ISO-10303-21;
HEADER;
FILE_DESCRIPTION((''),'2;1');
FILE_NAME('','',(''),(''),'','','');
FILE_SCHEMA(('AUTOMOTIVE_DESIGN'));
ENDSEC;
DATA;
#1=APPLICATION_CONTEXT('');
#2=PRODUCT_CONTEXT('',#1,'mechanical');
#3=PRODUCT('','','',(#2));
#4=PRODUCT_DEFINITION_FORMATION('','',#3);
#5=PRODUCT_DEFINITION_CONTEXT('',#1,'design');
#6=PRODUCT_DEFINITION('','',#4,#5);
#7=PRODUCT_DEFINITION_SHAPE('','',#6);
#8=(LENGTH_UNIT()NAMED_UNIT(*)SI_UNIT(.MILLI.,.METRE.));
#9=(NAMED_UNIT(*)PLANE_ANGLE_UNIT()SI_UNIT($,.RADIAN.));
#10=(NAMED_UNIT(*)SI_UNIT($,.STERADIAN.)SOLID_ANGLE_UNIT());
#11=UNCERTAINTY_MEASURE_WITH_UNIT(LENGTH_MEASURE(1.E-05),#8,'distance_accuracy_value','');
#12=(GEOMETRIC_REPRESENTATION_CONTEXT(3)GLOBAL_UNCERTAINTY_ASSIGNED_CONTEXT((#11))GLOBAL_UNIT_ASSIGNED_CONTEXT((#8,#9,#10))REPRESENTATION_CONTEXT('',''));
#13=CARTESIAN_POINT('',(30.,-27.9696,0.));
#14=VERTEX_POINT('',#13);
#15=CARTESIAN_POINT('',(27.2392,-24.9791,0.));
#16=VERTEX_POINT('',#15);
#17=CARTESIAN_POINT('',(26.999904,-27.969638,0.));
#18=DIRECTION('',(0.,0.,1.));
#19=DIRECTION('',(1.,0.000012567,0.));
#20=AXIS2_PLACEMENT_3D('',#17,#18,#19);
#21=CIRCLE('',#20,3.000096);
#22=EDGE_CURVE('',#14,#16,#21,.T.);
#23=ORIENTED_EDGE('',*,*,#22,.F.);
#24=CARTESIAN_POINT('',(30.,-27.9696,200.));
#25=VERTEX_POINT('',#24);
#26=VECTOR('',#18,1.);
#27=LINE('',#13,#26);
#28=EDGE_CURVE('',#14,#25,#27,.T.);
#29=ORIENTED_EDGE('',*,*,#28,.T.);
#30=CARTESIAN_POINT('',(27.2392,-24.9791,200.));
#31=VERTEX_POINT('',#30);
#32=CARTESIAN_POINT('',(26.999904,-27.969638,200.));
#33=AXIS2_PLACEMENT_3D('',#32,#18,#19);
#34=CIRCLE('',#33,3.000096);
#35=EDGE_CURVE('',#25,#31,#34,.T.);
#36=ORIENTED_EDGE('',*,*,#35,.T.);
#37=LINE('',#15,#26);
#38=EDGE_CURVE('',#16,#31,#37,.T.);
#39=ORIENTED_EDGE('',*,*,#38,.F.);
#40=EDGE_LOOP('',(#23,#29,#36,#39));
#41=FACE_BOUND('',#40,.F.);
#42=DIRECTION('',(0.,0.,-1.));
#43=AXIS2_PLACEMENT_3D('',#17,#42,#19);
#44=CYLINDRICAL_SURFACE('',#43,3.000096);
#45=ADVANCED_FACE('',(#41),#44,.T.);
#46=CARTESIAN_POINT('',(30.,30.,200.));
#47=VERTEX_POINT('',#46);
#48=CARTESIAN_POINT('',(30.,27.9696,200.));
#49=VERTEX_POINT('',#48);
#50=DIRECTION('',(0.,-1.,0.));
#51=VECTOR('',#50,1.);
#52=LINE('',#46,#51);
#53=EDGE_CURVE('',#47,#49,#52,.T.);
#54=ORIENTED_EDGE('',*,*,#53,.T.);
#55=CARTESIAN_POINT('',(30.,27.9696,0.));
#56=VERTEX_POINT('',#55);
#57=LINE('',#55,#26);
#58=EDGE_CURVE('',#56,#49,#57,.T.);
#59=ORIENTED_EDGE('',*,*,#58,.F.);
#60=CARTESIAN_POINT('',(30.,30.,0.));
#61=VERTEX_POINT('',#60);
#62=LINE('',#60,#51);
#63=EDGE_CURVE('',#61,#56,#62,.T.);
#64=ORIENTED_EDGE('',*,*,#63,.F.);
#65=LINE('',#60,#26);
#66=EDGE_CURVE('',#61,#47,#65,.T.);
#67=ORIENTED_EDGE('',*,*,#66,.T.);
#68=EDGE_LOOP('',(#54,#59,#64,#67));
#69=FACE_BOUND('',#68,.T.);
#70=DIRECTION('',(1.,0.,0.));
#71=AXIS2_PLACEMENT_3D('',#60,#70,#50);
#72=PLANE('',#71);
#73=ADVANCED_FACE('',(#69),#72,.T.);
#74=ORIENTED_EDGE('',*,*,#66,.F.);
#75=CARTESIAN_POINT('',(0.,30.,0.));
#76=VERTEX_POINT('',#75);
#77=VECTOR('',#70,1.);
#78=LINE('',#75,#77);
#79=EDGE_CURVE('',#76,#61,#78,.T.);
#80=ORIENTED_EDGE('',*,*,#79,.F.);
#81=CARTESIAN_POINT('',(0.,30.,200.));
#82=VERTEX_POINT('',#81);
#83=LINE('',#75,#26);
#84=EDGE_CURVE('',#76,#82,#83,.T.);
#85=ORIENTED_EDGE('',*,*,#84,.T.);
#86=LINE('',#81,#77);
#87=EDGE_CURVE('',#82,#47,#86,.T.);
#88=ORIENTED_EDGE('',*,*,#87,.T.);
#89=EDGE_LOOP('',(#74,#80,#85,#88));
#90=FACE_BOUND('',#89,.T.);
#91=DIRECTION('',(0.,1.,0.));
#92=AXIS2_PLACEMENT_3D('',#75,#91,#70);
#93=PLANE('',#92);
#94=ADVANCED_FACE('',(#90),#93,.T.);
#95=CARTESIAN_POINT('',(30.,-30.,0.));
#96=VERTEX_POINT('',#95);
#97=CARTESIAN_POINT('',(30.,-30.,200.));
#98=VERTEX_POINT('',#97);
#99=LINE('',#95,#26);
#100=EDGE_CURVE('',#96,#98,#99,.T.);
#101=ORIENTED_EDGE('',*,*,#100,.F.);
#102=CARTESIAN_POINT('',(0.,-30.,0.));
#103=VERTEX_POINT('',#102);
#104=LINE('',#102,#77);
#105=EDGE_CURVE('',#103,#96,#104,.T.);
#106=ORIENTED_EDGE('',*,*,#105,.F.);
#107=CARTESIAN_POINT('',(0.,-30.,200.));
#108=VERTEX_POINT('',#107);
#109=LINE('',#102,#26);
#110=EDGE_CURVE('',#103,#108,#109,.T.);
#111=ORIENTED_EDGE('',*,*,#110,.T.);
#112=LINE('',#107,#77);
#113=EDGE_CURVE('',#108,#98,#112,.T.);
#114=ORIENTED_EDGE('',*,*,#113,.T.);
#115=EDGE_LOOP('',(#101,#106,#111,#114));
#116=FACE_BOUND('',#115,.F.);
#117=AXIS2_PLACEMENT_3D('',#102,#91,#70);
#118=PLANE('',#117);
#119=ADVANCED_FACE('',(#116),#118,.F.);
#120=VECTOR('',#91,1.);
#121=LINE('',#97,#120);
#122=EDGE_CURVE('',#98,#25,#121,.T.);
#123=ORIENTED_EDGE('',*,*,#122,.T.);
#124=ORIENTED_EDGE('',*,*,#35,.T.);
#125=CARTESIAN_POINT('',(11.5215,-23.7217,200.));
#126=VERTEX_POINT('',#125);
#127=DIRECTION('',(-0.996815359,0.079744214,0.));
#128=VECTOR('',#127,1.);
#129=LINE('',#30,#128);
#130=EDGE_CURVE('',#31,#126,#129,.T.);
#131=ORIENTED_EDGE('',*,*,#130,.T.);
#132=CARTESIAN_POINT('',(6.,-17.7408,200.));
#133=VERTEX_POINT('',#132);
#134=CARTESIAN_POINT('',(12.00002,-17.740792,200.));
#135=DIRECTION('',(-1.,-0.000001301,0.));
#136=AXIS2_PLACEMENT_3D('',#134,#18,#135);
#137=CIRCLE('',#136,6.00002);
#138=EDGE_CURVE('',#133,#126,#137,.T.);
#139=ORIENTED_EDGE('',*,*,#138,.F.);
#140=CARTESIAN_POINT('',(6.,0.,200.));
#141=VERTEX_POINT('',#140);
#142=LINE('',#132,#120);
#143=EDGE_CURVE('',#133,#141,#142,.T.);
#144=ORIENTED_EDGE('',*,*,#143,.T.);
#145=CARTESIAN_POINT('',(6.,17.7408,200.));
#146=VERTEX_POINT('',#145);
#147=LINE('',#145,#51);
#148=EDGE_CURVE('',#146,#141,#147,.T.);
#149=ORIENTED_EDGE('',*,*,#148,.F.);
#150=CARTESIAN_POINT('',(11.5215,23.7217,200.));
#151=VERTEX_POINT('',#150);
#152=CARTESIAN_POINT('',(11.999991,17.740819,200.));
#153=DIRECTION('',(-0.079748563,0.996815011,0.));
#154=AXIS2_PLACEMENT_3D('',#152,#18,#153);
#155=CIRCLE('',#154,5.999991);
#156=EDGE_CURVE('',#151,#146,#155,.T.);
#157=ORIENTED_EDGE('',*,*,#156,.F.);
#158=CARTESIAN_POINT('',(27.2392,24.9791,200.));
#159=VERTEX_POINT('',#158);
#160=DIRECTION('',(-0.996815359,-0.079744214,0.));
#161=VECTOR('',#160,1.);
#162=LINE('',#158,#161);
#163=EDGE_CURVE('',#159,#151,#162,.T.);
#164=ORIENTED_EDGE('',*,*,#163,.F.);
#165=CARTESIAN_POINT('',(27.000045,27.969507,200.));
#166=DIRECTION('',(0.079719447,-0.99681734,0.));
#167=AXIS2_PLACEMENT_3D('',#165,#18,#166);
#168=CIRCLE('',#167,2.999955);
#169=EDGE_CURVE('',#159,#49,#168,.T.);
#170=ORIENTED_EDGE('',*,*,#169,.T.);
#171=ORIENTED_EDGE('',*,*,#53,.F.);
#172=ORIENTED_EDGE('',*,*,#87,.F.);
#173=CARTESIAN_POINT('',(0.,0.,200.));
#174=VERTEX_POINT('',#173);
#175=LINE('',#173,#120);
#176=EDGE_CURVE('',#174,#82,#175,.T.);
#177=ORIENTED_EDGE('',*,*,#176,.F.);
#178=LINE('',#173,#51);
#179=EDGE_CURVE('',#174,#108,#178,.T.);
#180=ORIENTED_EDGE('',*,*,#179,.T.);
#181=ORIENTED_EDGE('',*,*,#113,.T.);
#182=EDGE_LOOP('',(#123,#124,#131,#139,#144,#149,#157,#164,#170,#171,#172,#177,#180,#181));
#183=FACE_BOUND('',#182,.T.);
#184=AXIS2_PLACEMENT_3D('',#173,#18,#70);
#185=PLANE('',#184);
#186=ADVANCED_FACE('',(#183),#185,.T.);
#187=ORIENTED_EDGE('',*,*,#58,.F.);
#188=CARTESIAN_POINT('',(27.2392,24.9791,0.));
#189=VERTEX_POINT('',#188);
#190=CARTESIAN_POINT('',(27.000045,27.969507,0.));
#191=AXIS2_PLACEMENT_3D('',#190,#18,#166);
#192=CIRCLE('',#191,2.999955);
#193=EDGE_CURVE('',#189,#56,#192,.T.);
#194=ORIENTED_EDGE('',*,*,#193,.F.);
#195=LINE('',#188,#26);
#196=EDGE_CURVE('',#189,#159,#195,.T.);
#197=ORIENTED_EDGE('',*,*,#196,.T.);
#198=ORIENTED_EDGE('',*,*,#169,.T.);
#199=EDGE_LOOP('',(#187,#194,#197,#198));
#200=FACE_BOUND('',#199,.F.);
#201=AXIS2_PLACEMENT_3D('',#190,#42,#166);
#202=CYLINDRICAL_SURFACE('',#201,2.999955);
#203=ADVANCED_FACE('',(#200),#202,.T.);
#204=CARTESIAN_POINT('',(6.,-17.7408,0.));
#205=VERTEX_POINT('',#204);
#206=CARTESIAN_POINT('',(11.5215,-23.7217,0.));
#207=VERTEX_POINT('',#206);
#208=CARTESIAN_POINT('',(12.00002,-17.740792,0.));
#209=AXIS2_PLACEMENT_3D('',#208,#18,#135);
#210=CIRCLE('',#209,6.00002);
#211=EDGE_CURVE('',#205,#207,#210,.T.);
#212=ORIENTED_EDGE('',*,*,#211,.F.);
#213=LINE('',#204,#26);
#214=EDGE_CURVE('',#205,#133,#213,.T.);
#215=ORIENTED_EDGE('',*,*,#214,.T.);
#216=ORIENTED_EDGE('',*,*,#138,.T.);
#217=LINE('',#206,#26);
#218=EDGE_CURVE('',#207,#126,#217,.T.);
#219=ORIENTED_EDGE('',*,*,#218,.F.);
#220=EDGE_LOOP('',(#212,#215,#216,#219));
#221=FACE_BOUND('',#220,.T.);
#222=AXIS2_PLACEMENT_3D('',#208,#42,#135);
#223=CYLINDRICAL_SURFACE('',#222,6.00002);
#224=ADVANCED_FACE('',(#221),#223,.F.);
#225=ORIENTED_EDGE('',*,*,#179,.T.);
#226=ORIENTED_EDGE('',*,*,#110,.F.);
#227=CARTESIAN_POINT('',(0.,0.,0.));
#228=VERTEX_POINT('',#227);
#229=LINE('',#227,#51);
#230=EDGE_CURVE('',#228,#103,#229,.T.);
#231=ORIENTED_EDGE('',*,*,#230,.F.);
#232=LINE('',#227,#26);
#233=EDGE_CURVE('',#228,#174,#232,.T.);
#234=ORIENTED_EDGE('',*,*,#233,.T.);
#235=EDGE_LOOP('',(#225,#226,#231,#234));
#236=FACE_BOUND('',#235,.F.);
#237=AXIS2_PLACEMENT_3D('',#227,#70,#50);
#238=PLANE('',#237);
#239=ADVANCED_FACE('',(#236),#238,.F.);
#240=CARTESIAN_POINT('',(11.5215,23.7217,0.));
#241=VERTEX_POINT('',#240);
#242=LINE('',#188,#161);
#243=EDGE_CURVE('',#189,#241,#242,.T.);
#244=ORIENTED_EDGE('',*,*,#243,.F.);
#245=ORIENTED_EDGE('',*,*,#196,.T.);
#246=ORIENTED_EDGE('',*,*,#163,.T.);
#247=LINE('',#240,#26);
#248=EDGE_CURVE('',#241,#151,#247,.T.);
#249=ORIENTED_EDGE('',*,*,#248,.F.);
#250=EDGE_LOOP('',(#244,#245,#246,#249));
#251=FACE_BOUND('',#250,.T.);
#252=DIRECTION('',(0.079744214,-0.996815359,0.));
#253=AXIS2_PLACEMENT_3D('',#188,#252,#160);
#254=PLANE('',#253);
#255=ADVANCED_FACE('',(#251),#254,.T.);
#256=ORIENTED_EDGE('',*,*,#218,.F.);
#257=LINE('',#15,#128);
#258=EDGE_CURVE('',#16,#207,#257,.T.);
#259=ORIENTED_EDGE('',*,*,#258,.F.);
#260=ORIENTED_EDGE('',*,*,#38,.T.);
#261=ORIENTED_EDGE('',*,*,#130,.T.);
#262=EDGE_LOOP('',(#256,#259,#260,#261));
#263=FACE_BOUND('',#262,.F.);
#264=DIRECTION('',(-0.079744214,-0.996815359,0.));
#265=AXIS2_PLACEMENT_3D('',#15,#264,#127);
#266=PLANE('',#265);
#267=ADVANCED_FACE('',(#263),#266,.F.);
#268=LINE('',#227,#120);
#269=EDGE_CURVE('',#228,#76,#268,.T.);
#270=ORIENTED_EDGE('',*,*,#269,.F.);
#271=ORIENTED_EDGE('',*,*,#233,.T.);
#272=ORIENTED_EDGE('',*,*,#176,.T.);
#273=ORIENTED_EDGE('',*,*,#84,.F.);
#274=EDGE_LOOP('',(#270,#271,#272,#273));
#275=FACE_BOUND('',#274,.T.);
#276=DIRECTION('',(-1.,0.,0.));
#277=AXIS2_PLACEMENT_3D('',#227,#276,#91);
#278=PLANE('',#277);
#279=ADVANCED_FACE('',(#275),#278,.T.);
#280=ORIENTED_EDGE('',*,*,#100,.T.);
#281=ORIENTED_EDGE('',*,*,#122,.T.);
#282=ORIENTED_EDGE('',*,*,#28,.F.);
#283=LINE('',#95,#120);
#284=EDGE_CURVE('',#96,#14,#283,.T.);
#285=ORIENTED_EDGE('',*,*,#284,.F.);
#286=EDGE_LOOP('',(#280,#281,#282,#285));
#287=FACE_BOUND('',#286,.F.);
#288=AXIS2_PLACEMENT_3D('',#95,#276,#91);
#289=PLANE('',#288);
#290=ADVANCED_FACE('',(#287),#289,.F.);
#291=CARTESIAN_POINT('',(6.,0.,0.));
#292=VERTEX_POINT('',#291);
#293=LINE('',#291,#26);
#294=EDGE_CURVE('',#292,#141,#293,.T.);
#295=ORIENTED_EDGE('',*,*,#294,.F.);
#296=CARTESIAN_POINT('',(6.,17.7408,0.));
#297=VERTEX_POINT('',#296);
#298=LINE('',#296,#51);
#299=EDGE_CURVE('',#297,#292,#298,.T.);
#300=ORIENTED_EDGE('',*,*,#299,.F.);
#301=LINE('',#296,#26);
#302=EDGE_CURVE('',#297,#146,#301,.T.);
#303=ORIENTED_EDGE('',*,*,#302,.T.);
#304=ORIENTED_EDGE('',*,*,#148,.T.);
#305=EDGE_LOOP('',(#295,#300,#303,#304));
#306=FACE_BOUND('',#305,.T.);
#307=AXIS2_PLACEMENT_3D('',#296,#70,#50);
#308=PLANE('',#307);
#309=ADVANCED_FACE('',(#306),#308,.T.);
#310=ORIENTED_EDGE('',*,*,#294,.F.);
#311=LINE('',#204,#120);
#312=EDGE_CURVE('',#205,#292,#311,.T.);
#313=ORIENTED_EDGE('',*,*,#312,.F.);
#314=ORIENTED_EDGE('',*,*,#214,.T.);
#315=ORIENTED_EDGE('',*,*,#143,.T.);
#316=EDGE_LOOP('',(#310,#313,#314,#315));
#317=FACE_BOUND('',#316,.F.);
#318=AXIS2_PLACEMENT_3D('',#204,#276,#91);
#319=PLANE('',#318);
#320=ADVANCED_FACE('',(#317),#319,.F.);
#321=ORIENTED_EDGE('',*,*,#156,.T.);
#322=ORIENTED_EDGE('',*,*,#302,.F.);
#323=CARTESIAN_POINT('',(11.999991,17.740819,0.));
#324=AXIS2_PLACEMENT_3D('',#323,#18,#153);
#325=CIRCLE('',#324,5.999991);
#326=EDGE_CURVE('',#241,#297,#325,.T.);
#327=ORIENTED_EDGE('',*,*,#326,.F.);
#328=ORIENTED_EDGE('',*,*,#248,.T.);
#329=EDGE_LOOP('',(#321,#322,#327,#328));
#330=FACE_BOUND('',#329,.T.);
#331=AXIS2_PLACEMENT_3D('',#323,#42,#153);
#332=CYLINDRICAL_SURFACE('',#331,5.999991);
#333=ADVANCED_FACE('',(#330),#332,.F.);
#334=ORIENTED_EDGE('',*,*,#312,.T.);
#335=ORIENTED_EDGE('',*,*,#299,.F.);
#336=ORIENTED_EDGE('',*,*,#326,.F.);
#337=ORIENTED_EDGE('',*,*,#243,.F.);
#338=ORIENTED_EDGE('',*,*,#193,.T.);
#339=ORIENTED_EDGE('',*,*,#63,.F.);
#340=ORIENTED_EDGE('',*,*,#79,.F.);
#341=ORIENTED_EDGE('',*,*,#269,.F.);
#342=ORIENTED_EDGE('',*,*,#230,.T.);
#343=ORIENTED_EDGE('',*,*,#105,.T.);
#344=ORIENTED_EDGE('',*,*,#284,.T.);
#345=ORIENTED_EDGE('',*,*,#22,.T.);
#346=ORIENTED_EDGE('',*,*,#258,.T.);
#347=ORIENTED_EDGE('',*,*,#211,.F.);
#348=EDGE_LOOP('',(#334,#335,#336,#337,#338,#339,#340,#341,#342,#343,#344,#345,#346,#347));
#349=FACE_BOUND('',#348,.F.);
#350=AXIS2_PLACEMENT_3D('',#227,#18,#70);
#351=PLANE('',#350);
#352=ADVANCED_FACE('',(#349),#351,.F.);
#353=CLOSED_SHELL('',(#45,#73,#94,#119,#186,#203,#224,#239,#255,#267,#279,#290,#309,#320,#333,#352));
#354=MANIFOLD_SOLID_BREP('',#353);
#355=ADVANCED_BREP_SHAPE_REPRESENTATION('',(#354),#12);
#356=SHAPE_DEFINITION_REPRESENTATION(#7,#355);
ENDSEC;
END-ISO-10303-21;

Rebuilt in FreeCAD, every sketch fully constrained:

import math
import FreeCAD as App
import Part
import Sketcher
Q = App.Units.Quantity

doc = App.newDocument("Part")
params = doc.addObject("Spreadsheet::Sheet", "Params")
for row, (alias, value) in enumerate([
    ("sketch1_radius", "3 mm"),
    ("sketch1_radius2", "6 mm"),
    ("sketch1_width", "30 mm"),
    ("pad1_length", "200 mm"),
], start=1):
    params.set(f"A{row}", alias)
    params.set(f"B{row}", "=" + value)
    params.setAlias(f"B{row}", alias)

body = doc.addObject("PartDesign::Body", "Body")

# Sketch on XY plane
sketch1 = body.newObject("Sketcher::SketchObject", "Sketch")
sketch1.AttachmentSupport = (doc.getObject("XY_Plane"), [""])
sketch1.MapMode = "FlatFace"
sketch1.addGeometry([
    Part.LineSegment(App.Vector(0, 30, 0), App.Vector(0, -30, 0)),  # 0
    Part.LineSegment(App.Vector(0, -30, 0), App.Vector(30, -30, 0)),  # 1
    Part.LineSegment(App.Vector(30, -30, 0), App.Vector(30, -28, 0)),  # 2
    Part.ArcOfCircle(Part.Circle(App.Vector(27, -28, 0), App.Vector(0, 0, 1), 3), math.radians(0), math.radians(85)),  # 3
    Part.LineSegment(App.Vector(27.2, -25, 0), App.Vector(11.5, -23.7, 0)),  # 4
    Part.ArcOfCircle(Part.Circle(App.Vector(12, -17.7, 0), App.Vector(0, 0, 1), 6), math.radians(180), math.radians(265)),  # 5
    Part.LineSegment(App.Vector(6, -17.7, 0), App.Vector(6, 17.7, 0)),  # 6
    Part.ArcOfCircle(Part.Circle(App.Vector(12, 17.7, 0), App.Vector(0, 0, 1), 6), math.radians(95), math.radians(180)),  # 7
    Part.LineSegment(App.Vector(11.5, 23.7, 0), App.Vector(27.2, 25, 0)),  # 8
    Part.ArcOfCircle(Part.Circle(App.Vector(27, 28, 0), App.Vector(0, 0, 1), 3), math.radians(-85), math.radians(0)),  # 9
    Part.LineSegment(App.Vector(30, 28, 0), App.Vector(30, 30, 0)),  # 10
    Part.LineSegment(App.Vector(30, 30, 0), App.Vector(0, 30, 0)),  # 11
], False)
sketch1.addConstraint([
    Sketcher.Constraint("Coincident", 0, 2, 1, 1),
    Sketcher.Constraint("Coincident", 1, 2, 2, 1),
    Sketcher.Constraint("Tangent", 2, 2, 3, 1),
    Sketcher.Constraint("Tangent", 3, 2, 4, 1),
    Sketcher.Constraint("Tangent", 4, 2, 5, 2),
    Sketcher.Constraint("Tangent", 5, 1, 6, 1),
    Sketcher.Constraint("Tangent", 6, 2, 7, 2),
    Sketcher.Constraint("Tangent", 7, 1, 8, 1),
    Sketcher.Constraint("Tangent", 8, 2, 9, 1),
    Sketcher.Constraint("Tangent", 9, 2, 10, 1),
    Sketcher.Constraint("Coincident", 10, 2, 11, 1),
    Sketcher.Constraint("Coincident", 11, 2, 0, 1),
    Sketcher.Constraint("Vertical", 0),
    Sketcher.Constraint("Horizontal", 1),
    Sketcher.Constraint("Vertical", 2),
    Sketcher.Constraint("Vertical", 6),
    Sketcher.Constraint("Vertical", 10),
    Sketcher.Constraint("Horizontal", 11),
    Sketcher.Constraint("Equal", 5, 7),
    Sketcher.Constraint("Equal", 3, 9),
    Sketcher.Constraint("Symmetric", 0, 2, 11, 2, -1, 1),
    Sketcher.Constraint("Symmetric", 3, 3, 9, 3, -1),
    Sketcher.Constraint("Vertical", 4, 2, 7, 1),
    Sketcher.Constraint("Radius", 3, Q("3 mm")),
    Sketcher.Constraint("Radius", 5, Q("6 mm")),
    Sketcher.Constraint("DistanceX", 1, 1, 1, 2, Q("30 mm")),
    Sketcher.Constraint("DistanceY", 0, 2, -1, 1, Q("30 mm")),
    Sketcher.Constraint("DistanceX", -1, 1, 5, 1, Q("6 mm")),
    Sketcher.Constraint("DistanceY", 5, 3, 8, 2, Q("42.72 mm")),
    Sketcher.Constraint("Distance", 4, Q("15.768 mm")),
])
sketch1.setExpression("Constraints[23]", "Params.sketch1_radius")
sketch1.setExpression("Constraints[24]", "Params.sketch1_radius2")
sketch1.setExpression("Constraints[25]", "Params.sketch1_width")
pad1 = body.newObject("PartDesign::Pad", "Pad")
pad1.Profile = sketch1
pad1.setExpression("Length", "Params.pad1_length")

doc.recompute()
